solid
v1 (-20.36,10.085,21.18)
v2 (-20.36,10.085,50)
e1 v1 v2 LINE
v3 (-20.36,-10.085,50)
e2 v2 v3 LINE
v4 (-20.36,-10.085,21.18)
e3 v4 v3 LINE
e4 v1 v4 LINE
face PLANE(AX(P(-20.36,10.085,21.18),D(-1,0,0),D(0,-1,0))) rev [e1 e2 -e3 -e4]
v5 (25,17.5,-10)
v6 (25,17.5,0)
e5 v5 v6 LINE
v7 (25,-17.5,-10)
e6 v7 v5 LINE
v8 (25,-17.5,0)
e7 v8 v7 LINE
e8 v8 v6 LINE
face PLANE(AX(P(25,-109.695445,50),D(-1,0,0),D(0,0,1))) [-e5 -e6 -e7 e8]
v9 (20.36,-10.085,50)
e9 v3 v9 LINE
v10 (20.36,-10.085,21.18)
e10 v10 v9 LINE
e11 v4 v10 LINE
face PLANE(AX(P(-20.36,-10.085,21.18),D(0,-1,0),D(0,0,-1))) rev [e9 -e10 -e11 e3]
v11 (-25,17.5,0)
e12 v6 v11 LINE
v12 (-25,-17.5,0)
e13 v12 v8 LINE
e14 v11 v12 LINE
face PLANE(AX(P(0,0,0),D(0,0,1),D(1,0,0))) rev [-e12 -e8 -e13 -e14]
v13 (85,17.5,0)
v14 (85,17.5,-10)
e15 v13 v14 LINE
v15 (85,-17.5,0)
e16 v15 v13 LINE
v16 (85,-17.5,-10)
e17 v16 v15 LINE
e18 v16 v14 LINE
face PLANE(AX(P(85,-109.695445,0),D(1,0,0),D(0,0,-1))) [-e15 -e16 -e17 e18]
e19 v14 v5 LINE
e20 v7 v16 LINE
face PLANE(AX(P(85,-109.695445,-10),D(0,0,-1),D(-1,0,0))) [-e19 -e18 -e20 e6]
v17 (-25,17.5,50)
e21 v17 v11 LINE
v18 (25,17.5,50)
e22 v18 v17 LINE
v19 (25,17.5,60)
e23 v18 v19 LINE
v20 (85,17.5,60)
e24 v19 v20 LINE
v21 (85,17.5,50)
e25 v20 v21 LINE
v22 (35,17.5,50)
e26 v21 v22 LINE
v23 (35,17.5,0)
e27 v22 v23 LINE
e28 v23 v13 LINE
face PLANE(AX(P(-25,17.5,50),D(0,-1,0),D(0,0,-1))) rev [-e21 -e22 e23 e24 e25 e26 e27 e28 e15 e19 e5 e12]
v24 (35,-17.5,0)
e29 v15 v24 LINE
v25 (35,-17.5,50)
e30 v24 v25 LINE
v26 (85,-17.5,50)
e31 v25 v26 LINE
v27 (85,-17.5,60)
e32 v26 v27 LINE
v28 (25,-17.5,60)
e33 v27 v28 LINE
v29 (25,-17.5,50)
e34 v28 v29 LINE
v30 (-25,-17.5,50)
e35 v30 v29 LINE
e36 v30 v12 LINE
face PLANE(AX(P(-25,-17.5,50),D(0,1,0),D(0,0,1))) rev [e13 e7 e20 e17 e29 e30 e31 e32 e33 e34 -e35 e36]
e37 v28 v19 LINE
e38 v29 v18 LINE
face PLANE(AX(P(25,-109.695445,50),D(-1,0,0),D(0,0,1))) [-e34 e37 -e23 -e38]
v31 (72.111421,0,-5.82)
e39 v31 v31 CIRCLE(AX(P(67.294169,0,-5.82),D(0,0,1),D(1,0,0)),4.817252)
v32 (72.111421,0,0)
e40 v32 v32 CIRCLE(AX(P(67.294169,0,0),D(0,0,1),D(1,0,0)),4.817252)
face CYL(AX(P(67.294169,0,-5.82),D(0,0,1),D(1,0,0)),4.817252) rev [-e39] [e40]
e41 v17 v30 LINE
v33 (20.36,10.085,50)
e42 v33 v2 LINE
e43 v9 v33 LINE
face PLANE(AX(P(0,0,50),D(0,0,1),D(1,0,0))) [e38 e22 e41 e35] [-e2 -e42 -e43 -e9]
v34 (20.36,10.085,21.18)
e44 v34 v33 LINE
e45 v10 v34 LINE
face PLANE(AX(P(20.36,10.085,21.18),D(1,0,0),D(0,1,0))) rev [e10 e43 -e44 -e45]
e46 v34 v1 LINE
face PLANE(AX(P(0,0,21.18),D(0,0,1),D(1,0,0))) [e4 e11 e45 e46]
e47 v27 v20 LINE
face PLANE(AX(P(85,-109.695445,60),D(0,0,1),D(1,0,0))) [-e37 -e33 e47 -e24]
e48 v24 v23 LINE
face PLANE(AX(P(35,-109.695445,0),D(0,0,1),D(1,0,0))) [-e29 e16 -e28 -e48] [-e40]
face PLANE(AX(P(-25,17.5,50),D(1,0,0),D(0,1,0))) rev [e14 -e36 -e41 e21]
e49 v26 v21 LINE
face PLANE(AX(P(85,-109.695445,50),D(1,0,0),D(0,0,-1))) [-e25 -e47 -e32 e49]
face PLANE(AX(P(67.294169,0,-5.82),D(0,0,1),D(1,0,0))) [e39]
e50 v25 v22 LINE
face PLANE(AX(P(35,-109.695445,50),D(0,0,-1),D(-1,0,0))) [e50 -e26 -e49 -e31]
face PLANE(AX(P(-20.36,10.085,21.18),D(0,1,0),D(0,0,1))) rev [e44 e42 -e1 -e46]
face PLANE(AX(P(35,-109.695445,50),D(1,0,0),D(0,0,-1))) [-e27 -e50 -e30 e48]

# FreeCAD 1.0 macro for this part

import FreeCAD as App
import Part
import Sketcher
Q = App.Units.Quantity


def add_polygon(sketch, points):
    """Adds a closed chain of lines whose ends are joined by coincident constraints."""
    first, n = sketch.GeometryCount, len(points)
    for a, b in zip(points, points[1:] + points[:1]):
        sketch.addGeometry(Part.LineSegment(App.Vector(*a, 0), App.Vector(*b, 0)), False)
    for i in range(n):
        sketch.addConstraint(Sketcher.Constraint("Coincident", first + i, 2, first + (i + 1) % n, 1))

doc = App.newDocument("Part")
body = doc.addObject("PartDesign::Body", "Body")

sketch1 = body.newObject("Sketcher::SketchObject", "Sketch")
sketch1.AttachmentSupport = (doc.getObject("XY_Plane"), [""])
sketch1.MapMode = "FlatFace"
add_polygon(sketch1, [(-25, 17.5), (-25, -17.5), (25, -17.5), (25, 17.5)])
sketch1.addConstraint(Sketcher.Constraint("Vertical", 0))
sketch1.addConstraint(Sketcher.Constraint("Horizontal", 1))
sketch1.addConstraint(Sketcher.Constraint("Vertical", 2))
sketch1.addConstraint(Sketcher.Constraint("Horizontal", 3))
sketch1.addConstraint(Sketcher.Constraint("Symmetric", 0, 2, 2, 2, -1, 1))
sketch1.addConstraint(Sketcher.Constraint("DistanceX", 1, 1, 1, 2, Q("50 mm")))
sketch1.addConstraint(Sketcher.Constraint("DistanceY", 0, 2, 0, 1, Q("35 mm")))
pad1 = body.newObject("PartDesign::Pad", "Pad")
pad1.Profile = sketch1
pad1.Length = 50

sketch2 = body.newObject("Sketcher::SketchObject", "Sketch001")
sketch2.AttachmentSupport = (doc.getObject("XY_Plane"), [""])
sketch2.MapMode = "FlatFace"
sketch2.AttachmentOffset = App.Placement(App.Vector(0, 0, 50), App.Rotation())
add_polygon(sketch2, [(-20.36, 10.085), (-20.36, -10.085), (20.36, -10.085), (20.36, 10.085)])
sketch2.addConstraint(Sketcher.Constraint("Vertical", 0))
sketch2.addConstraint(Sketcher.Constraint("Horizontal", 1))
sketch2.addConstraint(Sketcher.Constraint("Vertical", 2))
sketch2.addConstraint(Sketcher.Constraint("Horizontal", 3))
sketch2.addConstraint(Sketcher.Constraint("Symmetric", 0, 2, 2, 2, -1, 1))
sketch2.addConstraint(Sketcher.Constraint("DistanceX", 1, 1, 1, 2, Q("40.72 mm")))
sketch2.addConstraint(Sketcher.Constraint("DistanceY", 0, 2, 0, 1, Q("20.17 mm")))
pocket1 = body.newObject("PartDesign::Pocket", "Pocket")
pocket1.Profile = sketch2
pocket1.Length = 28.82

sketch3 = body.newObject("Sketcher::SketchObject", "Sketch002")
sketch3.AttachmentSupport = (doc.getObject("XZ_Plane"), [""])
sketch3.MapMode = "FlatFace"
sketch3.AttachmentOffset = App.Placement(App.Vector(0, 0, -17.5), App.Rotation())
add_polygon(sketch3, [(25, -10), (25, 60), (85, 60), (85, 50), (35, 50), (35, 0), (85, 0), (85, -10)])
sketch3.addConstraint(Sketcher.Constraint("Vertical", 0))
sketch3.addConstraint(Sketcher.Constraint("Horizontal", 1))
sketch3.addConstraint(Sketcher.Constraint("Vertical", 2))
sketch3.addConstraint(Sketcher.Constraint("Horizontal", 3))
sketch3.addConstraint(Sketcher.Constraint("Vertical", 4))
sketch3.addConstraint(Sketcher.Constraint("Horizontal", 5))
sketch3.addConstraint(Sketcher.Constraint("Vertical", 6))
sketch3.addConstraint(Sketcher.Constraint("Horizontal", 7))
sketch3.addConstraint(Sketcher.Constraint("PointOnObject", 4, 2, -1))
sketch3.addConstraint(Sketcher.Constraint("Vertical", 2, 2, 5, 2))
sketch3.addConstraint(Sketcher.Constraint("Equal", 5, 4))
sketch3.addConstraint(Sketcher.Constraint("Equal", 2, 6))
sketch3.addConstraint(Sketcher.Constraint("DistanceX", 1, 1, 1, 2, Q("60 mm")))
sketch3.addConstraint(Sketcher.Constraint("DistanceX", 3, 2, 3, 1, Q("50 mm")))
sketch3.addConstraint(Sketcher.Constraint("DistanceY", 0, 1, 0, 2, Q("70 mm")))
sketch3.addConstraint(Sketcher.Constraint("DistanceX", -1, 1, 0, 2, Q("25 mm")))
pad2 = body.newObject("PartDesign::Pad", "Pad001")
pad2.Profile = sketch3
pad2.Length = 35

sketch4 = body.newObject("Sketcher::SketchObject", "Sketch003")
sketch4.AttachmentSupport = (doc.getObject("XY_Plane"), [""])
sketch4.MapMode = "FlatFace"
sketch4.addGeometry(Part.Circle(App.Vector(67.294169, 0, 0), App.Vector(0, 0, 1), 4.817252), False)
sketch4.addConstraint(Sketcher.Constraint("PointOnObject", 0, 3, -1))
sketch4.addConstraint(Sketcher.Constraint("Diameter", 0, Q("9.634504 mm")))
sketch4.addConstraint(Sketcher.Constraint("DistanceX", -1, 1, 0, 3, Q("67.294169 mm")))
pocket2 = body.newObject("PartDesign::Pocket", "Pocket001")
pocket2.Profile = sketch4
pocket2.Length = 5.82

doc.recompute()
